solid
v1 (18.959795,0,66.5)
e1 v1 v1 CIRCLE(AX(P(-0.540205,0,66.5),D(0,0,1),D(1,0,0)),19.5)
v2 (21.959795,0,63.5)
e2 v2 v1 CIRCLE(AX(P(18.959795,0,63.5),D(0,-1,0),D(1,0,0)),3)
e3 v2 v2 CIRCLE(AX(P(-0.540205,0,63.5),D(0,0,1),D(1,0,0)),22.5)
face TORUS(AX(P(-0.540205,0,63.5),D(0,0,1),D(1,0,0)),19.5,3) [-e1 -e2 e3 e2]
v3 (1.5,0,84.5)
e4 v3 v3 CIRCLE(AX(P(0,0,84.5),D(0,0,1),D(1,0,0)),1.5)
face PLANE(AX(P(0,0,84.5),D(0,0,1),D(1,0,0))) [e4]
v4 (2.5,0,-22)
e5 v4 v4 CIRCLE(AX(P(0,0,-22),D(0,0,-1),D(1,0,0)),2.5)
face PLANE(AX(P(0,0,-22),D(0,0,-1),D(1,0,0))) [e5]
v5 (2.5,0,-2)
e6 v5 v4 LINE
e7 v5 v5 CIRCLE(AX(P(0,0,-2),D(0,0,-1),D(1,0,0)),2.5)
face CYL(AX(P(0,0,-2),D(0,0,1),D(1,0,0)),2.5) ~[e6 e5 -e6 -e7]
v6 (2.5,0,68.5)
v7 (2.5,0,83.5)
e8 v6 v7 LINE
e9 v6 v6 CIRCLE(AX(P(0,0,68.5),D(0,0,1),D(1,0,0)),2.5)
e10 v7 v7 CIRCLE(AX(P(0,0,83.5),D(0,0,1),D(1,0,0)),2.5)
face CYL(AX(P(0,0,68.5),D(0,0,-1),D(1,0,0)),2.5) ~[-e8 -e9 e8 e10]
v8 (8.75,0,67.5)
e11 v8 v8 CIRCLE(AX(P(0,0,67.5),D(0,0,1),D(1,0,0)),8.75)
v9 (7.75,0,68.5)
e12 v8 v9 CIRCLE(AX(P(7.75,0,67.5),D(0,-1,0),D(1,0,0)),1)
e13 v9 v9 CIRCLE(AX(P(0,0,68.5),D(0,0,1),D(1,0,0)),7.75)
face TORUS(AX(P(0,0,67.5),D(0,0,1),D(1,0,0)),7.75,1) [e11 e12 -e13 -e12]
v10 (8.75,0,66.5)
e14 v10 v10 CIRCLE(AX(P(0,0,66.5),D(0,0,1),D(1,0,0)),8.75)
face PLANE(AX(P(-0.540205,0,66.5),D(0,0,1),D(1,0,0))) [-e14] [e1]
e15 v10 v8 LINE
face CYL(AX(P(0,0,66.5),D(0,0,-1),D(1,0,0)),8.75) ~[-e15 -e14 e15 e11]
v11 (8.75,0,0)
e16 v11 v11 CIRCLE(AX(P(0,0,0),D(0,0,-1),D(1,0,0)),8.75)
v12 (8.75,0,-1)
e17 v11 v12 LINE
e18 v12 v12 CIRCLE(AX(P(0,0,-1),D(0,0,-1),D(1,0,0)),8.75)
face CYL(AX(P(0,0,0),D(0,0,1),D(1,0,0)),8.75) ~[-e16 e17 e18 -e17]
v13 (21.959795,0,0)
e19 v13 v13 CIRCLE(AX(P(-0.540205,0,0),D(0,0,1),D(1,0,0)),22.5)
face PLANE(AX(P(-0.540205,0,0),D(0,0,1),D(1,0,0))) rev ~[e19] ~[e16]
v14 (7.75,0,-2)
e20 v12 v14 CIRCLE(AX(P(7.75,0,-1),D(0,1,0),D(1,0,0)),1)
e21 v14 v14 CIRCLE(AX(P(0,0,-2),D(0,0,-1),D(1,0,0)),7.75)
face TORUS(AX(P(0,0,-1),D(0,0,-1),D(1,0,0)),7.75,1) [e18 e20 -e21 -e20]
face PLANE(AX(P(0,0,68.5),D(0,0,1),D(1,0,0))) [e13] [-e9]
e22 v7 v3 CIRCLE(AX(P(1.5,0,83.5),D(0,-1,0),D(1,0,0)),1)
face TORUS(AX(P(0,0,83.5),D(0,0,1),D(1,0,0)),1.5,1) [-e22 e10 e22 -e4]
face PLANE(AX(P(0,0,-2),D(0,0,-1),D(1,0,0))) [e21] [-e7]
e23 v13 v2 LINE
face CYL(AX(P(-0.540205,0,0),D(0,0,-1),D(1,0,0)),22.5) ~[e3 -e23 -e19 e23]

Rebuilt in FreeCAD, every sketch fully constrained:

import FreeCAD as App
import Part
import Sketcher
from FreeCAD import Vector


def edges_at(feature, points):
    """Names of the edges that pass closest to the given points."""
    edges = feature.Shape.Edges
    near = lambda p: min(range(len(edges)), key=lambda i: edges[i].distToShape(Part.Vertex(*p))[0])
    return sorted({f"Edge{near(p) + 1}" for p in points})

doc = App.newDocument("Part")
body = doc.addObject("PartDesign::Body", "Body")

sketch1 = doc.addObject("Sketcher::SketchObject", "Sketch")
body.addObject(sketch1)
sketch1.AttachmentSupport = (doc.XY_Plane, [""])
sketch1.MapMode = "FlatFace"
sketch1.addGeometry(Part.Circle(Vector(-0.540205, 0, 0), Vector(0, 0, 1), 22.5), False)
sketch1.addConstraint([
    Sketcher.Constraint("PointOnObject", 0, 3, -1),
    Sketcher.Constraint("Diameter", 0, 45.0),
    Sketcher.Constraint("DistanceX", 0, 3, -1, 1, 0.540205),
])
pad1 = doc.addObject("PartDesign::Pad", "Pad")
body.addObject(pad1)
pad1.Profile = sketch1
pad1.Length = 66.5
doc.recompute()

fillet = doc.addObject("PartDesign::Fillet", "Fillet")
body.addObject(fillet)
fillet.Base = (pad1, edges_at(pad1, [(-23.04, 0, 66.5)]))
fillet.Radius = 3

sketch2 = doc.addObject("Sketcher::SketchObject", "Sketch001")
body.addObject(sketch2)
sketch2.AttachmentSupport = (doc.XY_Plane, [""])
sketch2.MapMode = "FlatFace"
sketch2.AttachmentOffset = App.Placement(Vector(0, 0, 66.5), App.Rotation())
sketch2.addGeometry(Part.Circle(Vector(0, 0, 0), Vector(0, 0, 1), 8.75), False)
sketch2.addConstraint([
    Sketcher.Constraint("Coincident", 0, 3, -1, 1),
    Sketcher.Constraint("Diameter", 0, 17.5),
])
pad2 = doc.addObject("PartDesign::Pad", "Pad001")
body.addObject(pad2)
pad2.Profile = sketch2
pad2.Length = 2
doc.recompute()

fillet2 = doc.addObject("PartDesign::Fillet", "Fillet001")
body.addObject(fillet2)
fillet2.Base = (pad2, edges_at(pad2, [(-8.75, 0, 68.5)]))
fillet2.Radius = 1

sketch3 = doc.addObject("Sketcher::SketchObject", "Sketch002")
body.addObject(sketch3)
sketch3.AttachmentSupport = (doc.XY_Plane, [""])
sketch3.MapMode = "FlatFace"
sketch3.AttachmentOffset = App.Placement(Vector(0, 0, 68.5), App.Rotation())
sketch3.addGeometry(Part.Circle(Vector(0, 0, 0), Vector(0, 0, 1), 2.5), False)
sketch3.addConstraint([
    Sketcher.Constraint("Coincident", 0, 3, -1, 1),
    Sketcher.Constraint("Diameter", 0, 5.0),
])
pad3 = doc.addObject("PartDesign::Pad", "Pad002")
body.addObject(pad3)
pad3.Profile = sketch3
pad3.Length = 16
doc.recompute()

fillet3 = doc.addObject("PartDesign::Fillet", "Fillet002")
body.addObject(fillet3)
fillet3.Base = (pad3, edges_at(pad3, [(-2.5, 0, 84.5)]))
fillet3.Radius = 1

sketch4 = doc.addObject("Sketcher::SketchObject", "Sketch003")
body.addObject(sketch4)
sketch4.AttachmentSupport = (doc.XY_Plane, [""])
sketch4.MapMode = "FlatFace"
sketch4.addGeometry(Part.Circle(Vector(0, 0, 0), Vector(0, 0, 1), 8.75), False)
sketch4.addConstraint([
    Sketcher.Constraint("Coincident", 0, 3, -1, 1),
    Sketcher.Constraint("Diameter", 0, 17.5),
])
pad4 = doc.addObject("PartDesign::Pad", "Pad003")
body.addObject(pad4)
pad4.Profile = sketch4
pad4.Length = 2
pad4.Reversed = True
doc.recompute()

fillet4 = doc.addObject("PartDesign::Fillet", "Fillet003")
body.addObject(fillet4)
fillet4.Base = (pad4, edges_at(pad4, [(-8.75, 0, -2)]))
fillet4.Radius = 1

sketch5 = doc.addObject("Sketcher::SketchObject", "Sketch004")
body.addObject(sketch5)
sketch5.AttachmentSupport = (doc.XY_Plane, [""])
sketch5.MapMode = "FlatFace"
sketch5.AttachmentOffset = App.Placement(Vector(0, 0, -2), App.Rotation())
sketch5.addGeometry(Part.Circle(Vector(0, 0, 0), Vector(0, 0, 1), 2.5), False)
sketch5.addConstraint([
    Sketcher.Constraint("Coincident", 0, 3, -1, 1),
    Sketcher.Constraint("Diameter", 0, 5.0),
])
pad5 = doc.addObject("PartDesign::Pad", "Pad004")
body.addObject(pad5)
pad5.Profile = sketch5
pad5.Length = 20
pad5.Reversed = True

doc.recompute()
